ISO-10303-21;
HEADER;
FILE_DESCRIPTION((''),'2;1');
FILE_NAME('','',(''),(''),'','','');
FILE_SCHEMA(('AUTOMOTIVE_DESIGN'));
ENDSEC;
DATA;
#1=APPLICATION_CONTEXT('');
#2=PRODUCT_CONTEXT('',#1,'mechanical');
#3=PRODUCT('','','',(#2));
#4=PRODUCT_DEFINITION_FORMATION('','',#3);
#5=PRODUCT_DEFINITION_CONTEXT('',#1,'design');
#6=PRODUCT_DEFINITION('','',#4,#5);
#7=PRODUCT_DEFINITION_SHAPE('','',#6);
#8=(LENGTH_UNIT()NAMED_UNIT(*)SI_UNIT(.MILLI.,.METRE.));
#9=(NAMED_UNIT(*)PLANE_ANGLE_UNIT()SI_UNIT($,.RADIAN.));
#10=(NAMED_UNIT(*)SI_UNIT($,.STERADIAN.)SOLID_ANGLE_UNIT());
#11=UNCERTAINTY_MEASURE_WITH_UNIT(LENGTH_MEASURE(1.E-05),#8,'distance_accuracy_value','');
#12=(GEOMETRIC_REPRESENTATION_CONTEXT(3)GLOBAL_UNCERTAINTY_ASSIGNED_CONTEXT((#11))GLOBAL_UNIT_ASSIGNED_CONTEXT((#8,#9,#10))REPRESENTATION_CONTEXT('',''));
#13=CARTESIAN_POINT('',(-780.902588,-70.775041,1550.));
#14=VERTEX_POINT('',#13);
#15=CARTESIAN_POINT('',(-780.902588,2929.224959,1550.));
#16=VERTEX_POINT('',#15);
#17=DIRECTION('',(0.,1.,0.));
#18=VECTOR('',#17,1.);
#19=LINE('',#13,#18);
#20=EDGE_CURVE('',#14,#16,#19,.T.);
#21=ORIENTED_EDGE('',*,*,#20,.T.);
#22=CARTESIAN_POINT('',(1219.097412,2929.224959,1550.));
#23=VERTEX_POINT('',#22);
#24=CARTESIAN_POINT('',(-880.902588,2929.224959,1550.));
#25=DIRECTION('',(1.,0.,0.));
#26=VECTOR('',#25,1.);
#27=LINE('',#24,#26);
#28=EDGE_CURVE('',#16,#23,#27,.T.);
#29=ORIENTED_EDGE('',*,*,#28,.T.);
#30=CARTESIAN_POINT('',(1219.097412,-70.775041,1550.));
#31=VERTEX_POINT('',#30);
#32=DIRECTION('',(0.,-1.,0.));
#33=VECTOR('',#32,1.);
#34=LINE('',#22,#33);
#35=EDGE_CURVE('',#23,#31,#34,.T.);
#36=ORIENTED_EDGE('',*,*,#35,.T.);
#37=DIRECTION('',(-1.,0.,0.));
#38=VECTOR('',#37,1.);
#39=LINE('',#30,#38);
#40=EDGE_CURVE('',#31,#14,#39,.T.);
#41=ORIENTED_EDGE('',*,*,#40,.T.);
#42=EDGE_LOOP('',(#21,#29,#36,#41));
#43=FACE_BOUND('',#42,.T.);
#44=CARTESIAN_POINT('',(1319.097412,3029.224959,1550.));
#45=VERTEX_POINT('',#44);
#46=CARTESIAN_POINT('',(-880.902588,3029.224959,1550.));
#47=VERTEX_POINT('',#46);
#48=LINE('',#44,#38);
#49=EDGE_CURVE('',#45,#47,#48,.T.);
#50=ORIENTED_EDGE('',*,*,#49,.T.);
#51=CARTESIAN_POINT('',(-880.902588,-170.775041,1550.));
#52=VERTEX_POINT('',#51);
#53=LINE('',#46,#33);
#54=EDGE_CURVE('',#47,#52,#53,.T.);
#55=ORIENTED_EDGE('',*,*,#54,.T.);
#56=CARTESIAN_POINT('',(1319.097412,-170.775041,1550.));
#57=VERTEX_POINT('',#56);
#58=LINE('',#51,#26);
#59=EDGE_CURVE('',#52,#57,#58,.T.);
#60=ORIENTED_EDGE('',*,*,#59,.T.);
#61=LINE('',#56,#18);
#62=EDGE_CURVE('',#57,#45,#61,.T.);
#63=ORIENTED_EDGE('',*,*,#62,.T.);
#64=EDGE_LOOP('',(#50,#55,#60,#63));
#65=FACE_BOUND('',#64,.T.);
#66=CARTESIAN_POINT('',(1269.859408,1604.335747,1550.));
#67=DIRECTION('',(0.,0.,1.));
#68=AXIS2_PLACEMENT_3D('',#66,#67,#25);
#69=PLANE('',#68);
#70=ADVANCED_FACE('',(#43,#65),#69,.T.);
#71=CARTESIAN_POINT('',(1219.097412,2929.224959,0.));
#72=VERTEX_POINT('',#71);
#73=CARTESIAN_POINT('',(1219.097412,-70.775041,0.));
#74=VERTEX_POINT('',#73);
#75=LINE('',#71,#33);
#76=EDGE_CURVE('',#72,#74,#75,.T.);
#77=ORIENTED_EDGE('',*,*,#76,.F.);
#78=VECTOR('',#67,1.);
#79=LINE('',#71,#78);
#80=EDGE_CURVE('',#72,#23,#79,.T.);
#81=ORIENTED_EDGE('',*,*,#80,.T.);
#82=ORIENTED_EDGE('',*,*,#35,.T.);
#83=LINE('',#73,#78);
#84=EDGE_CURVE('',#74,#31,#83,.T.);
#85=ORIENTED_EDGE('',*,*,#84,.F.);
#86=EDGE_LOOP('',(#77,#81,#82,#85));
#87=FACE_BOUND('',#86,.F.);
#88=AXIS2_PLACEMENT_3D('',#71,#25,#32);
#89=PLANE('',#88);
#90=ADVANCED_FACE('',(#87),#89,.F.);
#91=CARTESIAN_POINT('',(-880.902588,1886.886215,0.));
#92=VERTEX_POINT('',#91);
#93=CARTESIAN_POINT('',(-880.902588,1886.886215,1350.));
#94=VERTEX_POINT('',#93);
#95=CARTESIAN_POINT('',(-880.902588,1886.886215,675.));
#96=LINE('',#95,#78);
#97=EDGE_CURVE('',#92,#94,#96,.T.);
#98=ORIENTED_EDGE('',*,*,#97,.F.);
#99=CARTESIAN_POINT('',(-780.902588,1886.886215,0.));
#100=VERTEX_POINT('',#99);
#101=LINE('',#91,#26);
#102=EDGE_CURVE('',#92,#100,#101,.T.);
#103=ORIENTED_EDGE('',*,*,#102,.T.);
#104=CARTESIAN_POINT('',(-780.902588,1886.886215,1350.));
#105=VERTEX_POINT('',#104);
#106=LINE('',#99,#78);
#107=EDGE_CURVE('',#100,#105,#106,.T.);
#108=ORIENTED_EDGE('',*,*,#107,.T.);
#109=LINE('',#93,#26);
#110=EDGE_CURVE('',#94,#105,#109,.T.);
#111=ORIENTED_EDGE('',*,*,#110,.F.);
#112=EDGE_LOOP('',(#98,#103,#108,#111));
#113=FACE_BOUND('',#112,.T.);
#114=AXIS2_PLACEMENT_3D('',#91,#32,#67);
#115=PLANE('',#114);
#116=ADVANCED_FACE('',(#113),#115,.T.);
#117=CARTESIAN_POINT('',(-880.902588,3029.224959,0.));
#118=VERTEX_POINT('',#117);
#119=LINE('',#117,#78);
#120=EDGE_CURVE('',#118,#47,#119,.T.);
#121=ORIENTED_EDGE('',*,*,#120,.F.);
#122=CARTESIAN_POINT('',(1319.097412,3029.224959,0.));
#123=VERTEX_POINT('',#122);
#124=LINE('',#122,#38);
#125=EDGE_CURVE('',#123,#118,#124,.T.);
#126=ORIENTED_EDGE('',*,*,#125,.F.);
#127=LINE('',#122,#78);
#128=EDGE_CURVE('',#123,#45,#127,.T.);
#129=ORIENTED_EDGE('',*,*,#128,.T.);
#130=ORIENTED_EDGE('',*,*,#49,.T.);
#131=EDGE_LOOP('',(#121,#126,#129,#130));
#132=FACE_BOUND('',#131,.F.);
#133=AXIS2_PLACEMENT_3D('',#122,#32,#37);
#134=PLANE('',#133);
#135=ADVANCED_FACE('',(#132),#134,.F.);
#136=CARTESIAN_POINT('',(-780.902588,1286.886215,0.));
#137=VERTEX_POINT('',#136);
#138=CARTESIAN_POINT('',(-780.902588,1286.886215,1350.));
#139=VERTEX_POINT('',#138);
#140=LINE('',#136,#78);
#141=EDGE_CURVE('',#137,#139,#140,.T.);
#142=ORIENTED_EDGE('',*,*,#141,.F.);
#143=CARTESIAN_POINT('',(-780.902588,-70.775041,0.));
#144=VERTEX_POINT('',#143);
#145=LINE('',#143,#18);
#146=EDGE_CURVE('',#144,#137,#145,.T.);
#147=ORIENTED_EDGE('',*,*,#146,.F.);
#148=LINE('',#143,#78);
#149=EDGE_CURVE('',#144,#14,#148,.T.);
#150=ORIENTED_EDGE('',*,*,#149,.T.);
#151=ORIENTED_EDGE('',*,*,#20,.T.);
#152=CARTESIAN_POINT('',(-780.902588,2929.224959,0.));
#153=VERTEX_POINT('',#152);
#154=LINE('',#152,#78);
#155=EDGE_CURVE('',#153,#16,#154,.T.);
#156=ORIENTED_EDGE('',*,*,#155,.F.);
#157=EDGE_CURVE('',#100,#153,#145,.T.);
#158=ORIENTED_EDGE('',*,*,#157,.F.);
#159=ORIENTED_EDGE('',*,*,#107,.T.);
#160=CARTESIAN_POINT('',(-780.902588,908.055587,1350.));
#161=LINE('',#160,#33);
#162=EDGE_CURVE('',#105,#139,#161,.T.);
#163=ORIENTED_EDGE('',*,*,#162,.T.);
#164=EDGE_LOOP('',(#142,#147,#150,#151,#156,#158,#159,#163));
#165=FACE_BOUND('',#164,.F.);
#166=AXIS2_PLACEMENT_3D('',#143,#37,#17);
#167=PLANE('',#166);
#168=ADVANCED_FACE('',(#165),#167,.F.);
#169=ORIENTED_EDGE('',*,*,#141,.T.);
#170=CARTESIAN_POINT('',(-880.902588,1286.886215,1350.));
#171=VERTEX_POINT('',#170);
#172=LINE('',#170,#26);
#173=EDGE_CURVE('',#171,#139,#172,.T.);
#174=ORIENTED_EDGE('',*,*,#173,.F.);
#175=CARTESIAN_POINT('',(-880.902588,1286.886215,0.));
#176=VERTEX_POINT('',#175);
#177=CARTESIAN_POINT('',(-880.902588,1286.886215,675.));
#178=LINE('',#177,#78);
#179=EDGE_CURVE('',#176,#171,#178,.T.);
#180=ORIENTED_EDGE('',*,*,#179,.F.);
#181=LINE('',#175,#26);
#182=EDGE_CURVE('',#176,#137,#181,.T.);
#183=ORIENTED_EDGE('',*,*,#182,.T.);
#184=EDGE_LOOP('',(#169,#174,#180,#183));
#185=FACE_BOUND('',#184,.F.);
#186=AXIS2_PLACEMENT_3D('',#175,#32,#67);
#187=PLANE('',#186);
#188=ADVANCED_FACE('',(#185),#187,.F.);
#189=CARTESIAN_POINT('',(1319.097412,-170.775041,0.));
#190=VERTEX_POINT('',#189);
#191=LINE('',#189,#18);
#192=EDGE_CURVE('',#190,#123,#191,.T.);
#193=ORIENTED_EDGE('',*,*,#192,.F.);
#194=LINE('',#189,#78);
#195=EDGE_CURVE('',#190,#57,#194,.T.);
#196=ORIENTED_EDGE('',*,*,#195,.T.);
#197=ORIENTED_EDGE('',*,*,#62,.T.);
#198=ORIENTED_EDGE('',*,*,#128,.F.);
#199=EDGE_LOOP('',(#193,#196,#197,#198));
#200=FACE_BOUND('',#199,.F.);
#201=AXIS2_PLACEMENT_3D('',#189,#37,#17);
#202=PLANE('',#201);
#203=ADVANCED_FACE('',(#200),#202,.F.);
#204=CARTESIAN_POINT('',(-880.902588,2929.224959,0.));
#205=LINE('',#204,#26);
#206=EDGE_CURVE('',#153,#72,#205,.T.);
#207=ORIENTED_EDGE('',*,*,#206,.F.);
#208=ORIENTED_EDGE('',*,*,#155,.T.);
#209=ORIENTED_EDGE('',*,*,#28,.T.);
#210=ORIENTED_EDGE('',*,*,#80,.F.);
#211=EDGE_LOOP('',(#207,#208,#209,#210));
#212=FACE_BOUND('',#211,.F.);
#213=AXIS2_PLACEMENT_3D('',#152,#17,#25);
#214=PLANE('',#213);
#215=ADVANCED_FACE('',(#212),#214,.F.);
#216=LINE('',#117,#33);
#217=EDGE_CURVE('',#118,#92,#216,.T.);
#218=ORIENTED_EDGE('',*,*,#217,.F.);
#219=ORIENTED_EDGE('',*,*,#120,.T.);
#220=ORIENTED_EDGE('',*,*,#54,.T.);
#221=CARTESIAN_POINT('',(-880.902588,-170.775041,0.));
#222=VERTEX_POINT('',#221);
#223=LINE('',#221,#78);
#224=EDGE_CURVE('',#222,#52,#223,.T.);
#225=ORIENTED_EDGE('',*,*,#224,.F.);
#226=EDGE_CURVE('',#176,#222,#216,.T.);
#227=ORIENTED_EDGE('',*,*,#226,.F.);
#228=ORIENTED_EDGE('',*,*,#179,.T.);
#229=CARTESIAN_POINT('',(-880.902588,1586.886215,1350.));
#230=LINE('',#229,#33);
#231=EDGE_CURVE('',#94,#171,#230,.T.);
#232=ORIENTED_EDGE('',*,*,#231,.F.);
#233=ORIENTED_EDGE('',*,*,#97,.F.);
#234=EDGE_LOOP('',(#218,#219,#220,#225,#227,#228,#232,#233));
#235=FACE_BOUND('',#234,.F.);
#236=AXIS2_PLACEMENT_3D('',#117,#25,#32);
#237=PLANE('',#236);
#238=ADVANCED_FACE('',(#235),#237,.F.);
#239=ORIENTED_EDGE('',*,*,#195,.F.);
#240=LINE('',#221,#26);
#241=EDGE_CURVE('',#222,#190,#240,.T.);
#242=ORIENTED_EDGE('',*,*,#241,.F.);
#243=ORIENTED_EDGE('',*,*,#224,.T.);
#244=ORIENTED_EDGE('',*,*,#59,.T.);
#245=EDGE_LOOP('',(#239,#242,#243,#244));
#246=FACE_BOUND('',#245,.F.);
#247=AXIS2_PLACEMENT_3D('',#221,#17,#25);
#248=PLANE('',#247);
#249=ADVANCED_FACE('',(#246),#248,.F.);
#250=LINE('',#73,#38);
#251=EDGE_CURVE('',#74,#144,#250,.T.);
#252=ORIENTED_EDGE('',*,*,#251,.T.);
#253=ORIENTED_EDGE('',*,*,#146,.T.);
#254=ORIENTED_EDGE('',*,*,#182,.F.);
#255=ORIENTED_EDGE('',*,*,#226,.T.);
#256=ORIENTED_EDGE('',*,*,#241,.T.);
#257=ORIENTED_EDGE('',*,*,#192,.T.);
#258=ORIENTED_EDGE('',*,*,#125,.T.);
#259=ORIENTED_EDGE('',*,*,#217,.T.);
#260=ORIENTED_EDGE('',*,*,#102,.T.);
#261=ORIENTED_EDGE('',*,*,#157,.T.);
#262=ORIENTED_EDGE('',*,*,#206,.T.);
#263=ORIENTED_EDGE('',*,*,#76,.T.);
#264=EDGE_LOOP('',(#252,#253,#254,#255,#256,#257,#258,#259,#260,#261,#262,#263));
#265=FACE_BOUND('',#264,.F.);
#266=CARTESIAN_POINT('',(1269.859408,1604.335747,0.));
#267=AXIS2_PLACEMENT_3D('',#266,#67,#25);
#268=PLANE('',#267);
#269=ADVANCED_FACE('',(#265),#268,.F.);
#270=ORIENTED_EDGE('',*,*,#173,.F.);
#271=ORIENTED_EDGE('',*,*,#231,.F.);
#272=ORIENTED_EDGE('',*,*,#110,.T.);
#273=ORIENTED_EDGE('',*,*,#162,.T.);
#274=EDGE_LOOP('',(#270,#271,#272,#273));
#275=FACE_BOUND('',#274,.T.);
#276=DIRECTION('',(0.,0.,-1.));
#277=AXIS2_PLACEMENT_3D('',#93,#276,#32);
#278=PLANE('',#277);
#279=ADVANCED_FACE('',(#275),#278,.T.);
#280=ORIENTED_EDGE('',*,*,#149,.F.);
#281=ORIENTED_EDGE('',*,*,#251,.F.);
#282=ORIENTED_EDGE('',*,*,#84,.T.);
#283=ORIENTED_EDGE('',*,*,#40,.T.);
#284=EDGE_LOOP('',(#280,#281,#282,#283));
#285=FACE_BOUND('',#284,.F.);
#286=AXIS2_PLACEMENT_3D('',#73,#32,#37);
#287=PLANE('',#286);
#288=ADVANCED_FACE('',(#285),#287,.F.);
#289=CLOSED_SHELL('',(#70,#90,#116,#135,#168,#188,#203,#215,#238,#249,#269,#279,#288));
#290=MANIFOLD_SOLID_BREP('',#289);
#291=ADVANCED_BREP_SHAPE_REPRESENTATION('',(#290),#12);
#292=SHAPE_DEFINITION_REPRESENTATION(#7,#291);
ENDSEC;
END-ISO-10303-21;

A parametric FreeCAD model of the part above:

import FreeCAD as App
import Part
import Sketcher
from FreeCAD import Vector
Q = App.Units.Quantity


def add_polygon(sketch, points):
    """Adds a closed chain of lines whose ends are joined by coincident constraints."""
    first, n = sketch.GeometryCount, len(points)
    for a, b in zip(points, points[1:] + points[:1]):
        sketch.addGeometry(Part.LineSegment(App.Vector(*a, 0), App.Vector(*b, 0)), False)
    for i in range(n):
        sketch.addConstraint(Sketcher.Constraint("Coincident", first + i, 2, first + (i + 1) % n, 1))

doc = App.newDocument("Part")
body = doc.addObject("PartDesign::Body", "Body")

# Sketch on XY plane
sketch1 = body.newObject("Sketcher::SketchObject", "Sketch")
sketch1.AttachmentSupport = (doc.getObject("XY_Plane"), [""])
sketch1.MapMode = "FlatFace"
add_polygon(sketch1, [(1319.097412, 3029.224959), (-880.902588, 3029.224959), (-880.902588, -170.775041), (1319.097412, -170.775041)])  # lines 0-3
add_polygon(sketch1, [(1219.097412, -70.775041), (-780.902588, -70.775041), (-780.902588, 2929.224959), (1219.097412, 2929.224959)])  # lines 4-7
sketch1.addConstraint(Sketcher.Constraint("Horizontal", 0))
sketch1.addConstraint(Sketcher.Constraint("Vertical", 1))
sketch1.addConstraint(Sketcher.Constraint("Horizontal", 2))
sketch1.addConstraint(Sketcher.Constraint("Vertical", 3))
sketch1.addConstraint(Sketcher.Constraint("Horizontal", 4))
sketch1.addConstraint(Sketcher.Constraint("Vertical", 5))
sketch1.addConstraint(Sketcher.Constraint("Horizontal", 6))
sketch1.addConstraint(Sketcher.Constraint("Vertical", 7))
sketch1.addConstraint(Sketcher.Constraint("DistanceX", 0, 2, 0, 1, Q("2200 mm")))
sketch1.addConstraint(Sketcher.Constraint("DistanceX", 4, 2, 4, 1, Q("2000 mm")))
sketch1.addConstraint(Sketcher.Constraint("DistanceY", 1, 2, 1, 1, Q("3200 mm")))
sketch1.addConstraint(Sketcher.Constraint("DistanceY", 5, 1, 5, 2, Q("3000 mm")))
sketch1.addConstraint(Sketcher.Constraint("DistanceX", 1, 2, 4, 2, Q("100 mm")))
sketch1.addConstraint(Sketcher.Constraint("DistanceY", 1, 2, 4, 2, Q("100 mm")))
sketch1.addConstraint(Sketcher.Constraint("DistanceX", 0, 2, -1, 1, Q("880.902588 mm")))
sketch1.addConstraint(Sketcher.Constraint("DistanceY", -1, 1, 0, 2, Q("3029.224959 mm")))
pad1 = body.newObject("PartDesign::Pad", "Pad")
pad1.Profile = sketch1
pad1.Length = 1550

# Sketch on YZ plane
sketch2 = body.newObject("Sketcher::SketchObject", "Sketch001")
sketch2.AttachmentSupport = (doc.getObject("YZ_Plane"), [""])
sketch2.MapMode = "FlatFace"
sketch2.AttachmentOffset = App.Placement(Vector(0, 0, -880.902588), App.Rotation())
add_polygon(sketch2, [(1886.886215, 1350), (1886.886215, 0), (1286.886215, 0), (1286.886215, 1350)])  # lines 0-3
sketch2.addConstraint(Sketcher.Constraint("Vertical", 0))
sketch2.addConstraint(Sketcher.Constraint("Horizontal", 1))
sketch2.addConstraint(Sketcher.Constraint("Vertical", 2))
sketch2.addConstraint(Sketcher.Constraint("Horizontal", 3))
sketch2.addConstraint(Sketcher.Constraint("PointOnObject", 0, 2, -1))
sketch2.addConstraint(Sketcher.Constraint("DistanceX", 1, 2, 1, 1, Q("600 mm")))
sketch2.addConstraint(Sketcher.Constraint("DistanceY", 0, 2, 0, 1, Q("1350 mm")))
sketch2.addConstraint(Sketcher.Constraint("DistanceX", -1, 1, 0, 2, Q("1886.886215 mm")))
pocket1 = body.newObject("PartDesign::Pocket", "Pocket")
pocket1.Profile = sketch2
pocket1.Length = 1090
pocket1.Reversed = True

doc.recompute()
